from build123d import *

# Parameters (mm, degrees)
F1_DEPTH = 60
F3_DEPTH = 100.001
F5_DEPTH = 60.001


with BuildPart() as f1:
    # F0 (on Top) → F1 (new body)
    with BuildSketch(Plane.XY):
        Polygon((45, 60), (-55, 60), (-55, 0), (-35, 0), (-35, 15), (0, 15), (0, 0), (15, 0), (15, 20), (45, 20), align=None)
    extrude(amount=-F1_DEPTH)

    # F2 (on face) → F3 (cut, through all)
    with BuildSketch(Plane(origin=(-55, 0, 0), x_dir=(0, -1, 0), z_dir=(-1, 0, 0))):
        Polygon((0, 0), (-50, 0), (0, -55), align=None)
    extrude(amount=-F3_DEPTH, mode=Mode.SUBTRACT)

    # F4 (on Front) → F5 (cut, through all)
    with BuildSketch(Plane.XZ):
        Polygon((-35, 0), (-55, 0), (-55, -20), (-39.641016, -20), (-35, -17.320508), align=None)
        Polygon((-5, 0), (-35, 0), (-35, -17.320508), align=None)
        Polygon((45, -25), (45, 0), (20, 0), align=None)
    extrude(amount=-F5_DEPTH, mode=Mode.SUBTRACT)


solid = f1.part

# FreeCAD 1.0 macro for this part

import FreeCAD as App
import Part
import Sketcher

V = App.Vector
Q = App.Units.Quantity


def add_polygon(sketch, points):
    """Adds a closed chain of lines whose ends are joined by coincident constraints."""
    first, n = sketch.GeometryCount, len(points)
    for a, b in zip(points, points[1:] + points[:1]):
        sketch.addGeometry(Part.LineSegment(App.Vector(*a, 0), App.Vector(*b, 0)), False)
    for i in range(n):
        sketch.addConstraint(Sketcher.Constraint("Coincident", first + i, 2, first + (i + 1) % n, 1))

doc = App.newDocument("Part")
body = doc.addObject("PartDesign::Body", "Body")

# Sketch on XY plane
sketch1 = doc.addObject("Sketcher::SketchObject", "Sketch")
body.addObject(sketch1)
sketch1.AttachmentSupport = (doc.XY_Plane, [""])
sketch1.MapMode = "FlatFace"
add_polygon(sketch1, [(45, 60), (-55, 60), (-55, 0), (-35, 0), (-35, 15), (0, 15), (0, 0), (15, 0), (15, 20), (45, 20)])  # lines 0-9
sketch1.addConstraint([
    Sketcher.Constraint("Horizontal", 0),
    Sketcher.Constraint("Vertical", 1),
    Sketcher.Constraint("Horizontal", 2),
    Sketcher.Constraint("Vertical", 3),
    Sketcher.Constraint("Horizontal", 4),
    Sketcher.Constraint("Vertical", 5),
    Sketcher.Constraint("Horizontal", 6),
    Sketcher.Constraint("Vertical", 7),
    Sketcher.Constraint("Horizontal", 8),
    Sketcher.Constraint("Vertical", 9),
    Sketcher.Constraint("Coincident", 5, 2, -1, 1),
    Sketcher.Constraint("PointOnObject", 1, 2, -1),
    Sketcher.Constraint("Equal", 6, 3),
    Sketcher.Constraint("Equal", 2, 7),
    Sketcher.Constraint("DistanceX", 0, 2, 0, 1, Q("100 mm")),
    Sketcher.Constraint("DistanceX", 2, 1, 2, 2, Q("20 mm")),
    Sketcher.Constraint("DistanceX", 4, 1, 4, 2, Q("35 mm")),
    Sketcher.Constraint("DistanceX", 6, 1, 6, 2, Q("15 mm")),
    Sketcher.Constraint("DistanceY", 1, 2, 1, 1, Q("60 mm")),
])
pad1 = doc.addObject("PartDesign::Pad", "Pad")
body.addObject(pad1)
pad1.Profile = sketch1
pad1.Length = 60
pad1.Reversed = True

# Sketch on YZ plane
sketch2 = doc.addObject("Sketcher::SketchObject", "Sketch001")
body.addObject(sketch2)
sketch2.AttachmentSupport = (doc.YZ_Plane, [""])
sketch2.MapMode = "FlatFace"
sketch2.AttachmentOffset = App.Placement(V(0, 0, -55), App.Rotation())
add_polygon(sketch2, [(0, 0), (50, 0), (0, -55)])  # lines 0-2
sketch2.addConstraint([
    Sketcher.Constraint("Horizontal", 0),
    Sketcher.Constraint("Vertical", 2),
    Sketcher.Constraint("Coincident", 2, 2, -1, 1),
    Sketcher.Constraint("DistanceX", 0, 1, 0, 2, Q("50 mm")),
    Sketcher.Constraint("DistanceY", 2, 1, 2, 2, Q("55 mm")),
])
pocket1 = doc.addObject("PartDesign::Pocket", "Pocket")
body.addObject(pocket1)
pocket1.Profile = sketch2
pocket1.Type = "ThroughAll"
pocket1.Reversed = True

# Sketch on XZ plane
sketch3 = doc.addObject("Sketcher::SketchObject", "Sketch002")
body.addObject(sketch3)
sketch3.AttachmentSupport = (doc.XZ_Plane, [""])
sketch3.MapMode = "FlatFace"
add_polygon(sketch3, [(-55, 0), (-55, -20), (-40, -20), (-35, -17), (-5, 0)])  # lines 0-4
add_polygon(sketch3, [(45, -25), (45, 0), (20, 0)])  # lines 5-7
sketch3.addConstraint([
    Sketcher.Constraint("Vertical", 0),
    Sketcher.Constraint("Horizontal", 1),
    Sketcher.Constraint("Horizontal", 4),
    Sketcher.Constraint("Vertical", 5),
    Sketcher.Constraint("Horizontal", 6),
    Sketcher.Constraint("PointOnObject", 3, 2, -1),
    Sketcher.Constraint("PointOnObject", 5, 2, -1),
    Sketcher.Constraint("Parallel", 2, 3),
    Sketcher.Constraint("Equal", 6, 5),
    Sketcher.Constraint("DistanceX", 4, 2, 4, 1, Q("50 mm")),
    Sketcher.Constraint("DistanceX", 6, 2, 6, 1, Q("25 mm")),
    Sketcher.Constraint("DistanceY", 0, 2, 0, 1, Q("20 mm")),
    Sketcher.Constraint("Angle", 2, Q("30.000002 deg")),
    Sketcher.Constraint("DistanceX", 0, 2, -1, 1, Q("55 mm")),
    Sketcher.Constraint("DistanceX", 2, 2, -1, 1, Q("35 mm")),
    Sketcher.Constraint("DistanceX", -1, 1, 5, 2, Q("45 mm")),
])
pocket2 = doc.addObject("PartDesign::Pocket", "Pocket001")
body.addObject(pocket2)
pocket2.Profile = sketch3
pocket2.Type = "ThroughAll"

doc.recompute()
